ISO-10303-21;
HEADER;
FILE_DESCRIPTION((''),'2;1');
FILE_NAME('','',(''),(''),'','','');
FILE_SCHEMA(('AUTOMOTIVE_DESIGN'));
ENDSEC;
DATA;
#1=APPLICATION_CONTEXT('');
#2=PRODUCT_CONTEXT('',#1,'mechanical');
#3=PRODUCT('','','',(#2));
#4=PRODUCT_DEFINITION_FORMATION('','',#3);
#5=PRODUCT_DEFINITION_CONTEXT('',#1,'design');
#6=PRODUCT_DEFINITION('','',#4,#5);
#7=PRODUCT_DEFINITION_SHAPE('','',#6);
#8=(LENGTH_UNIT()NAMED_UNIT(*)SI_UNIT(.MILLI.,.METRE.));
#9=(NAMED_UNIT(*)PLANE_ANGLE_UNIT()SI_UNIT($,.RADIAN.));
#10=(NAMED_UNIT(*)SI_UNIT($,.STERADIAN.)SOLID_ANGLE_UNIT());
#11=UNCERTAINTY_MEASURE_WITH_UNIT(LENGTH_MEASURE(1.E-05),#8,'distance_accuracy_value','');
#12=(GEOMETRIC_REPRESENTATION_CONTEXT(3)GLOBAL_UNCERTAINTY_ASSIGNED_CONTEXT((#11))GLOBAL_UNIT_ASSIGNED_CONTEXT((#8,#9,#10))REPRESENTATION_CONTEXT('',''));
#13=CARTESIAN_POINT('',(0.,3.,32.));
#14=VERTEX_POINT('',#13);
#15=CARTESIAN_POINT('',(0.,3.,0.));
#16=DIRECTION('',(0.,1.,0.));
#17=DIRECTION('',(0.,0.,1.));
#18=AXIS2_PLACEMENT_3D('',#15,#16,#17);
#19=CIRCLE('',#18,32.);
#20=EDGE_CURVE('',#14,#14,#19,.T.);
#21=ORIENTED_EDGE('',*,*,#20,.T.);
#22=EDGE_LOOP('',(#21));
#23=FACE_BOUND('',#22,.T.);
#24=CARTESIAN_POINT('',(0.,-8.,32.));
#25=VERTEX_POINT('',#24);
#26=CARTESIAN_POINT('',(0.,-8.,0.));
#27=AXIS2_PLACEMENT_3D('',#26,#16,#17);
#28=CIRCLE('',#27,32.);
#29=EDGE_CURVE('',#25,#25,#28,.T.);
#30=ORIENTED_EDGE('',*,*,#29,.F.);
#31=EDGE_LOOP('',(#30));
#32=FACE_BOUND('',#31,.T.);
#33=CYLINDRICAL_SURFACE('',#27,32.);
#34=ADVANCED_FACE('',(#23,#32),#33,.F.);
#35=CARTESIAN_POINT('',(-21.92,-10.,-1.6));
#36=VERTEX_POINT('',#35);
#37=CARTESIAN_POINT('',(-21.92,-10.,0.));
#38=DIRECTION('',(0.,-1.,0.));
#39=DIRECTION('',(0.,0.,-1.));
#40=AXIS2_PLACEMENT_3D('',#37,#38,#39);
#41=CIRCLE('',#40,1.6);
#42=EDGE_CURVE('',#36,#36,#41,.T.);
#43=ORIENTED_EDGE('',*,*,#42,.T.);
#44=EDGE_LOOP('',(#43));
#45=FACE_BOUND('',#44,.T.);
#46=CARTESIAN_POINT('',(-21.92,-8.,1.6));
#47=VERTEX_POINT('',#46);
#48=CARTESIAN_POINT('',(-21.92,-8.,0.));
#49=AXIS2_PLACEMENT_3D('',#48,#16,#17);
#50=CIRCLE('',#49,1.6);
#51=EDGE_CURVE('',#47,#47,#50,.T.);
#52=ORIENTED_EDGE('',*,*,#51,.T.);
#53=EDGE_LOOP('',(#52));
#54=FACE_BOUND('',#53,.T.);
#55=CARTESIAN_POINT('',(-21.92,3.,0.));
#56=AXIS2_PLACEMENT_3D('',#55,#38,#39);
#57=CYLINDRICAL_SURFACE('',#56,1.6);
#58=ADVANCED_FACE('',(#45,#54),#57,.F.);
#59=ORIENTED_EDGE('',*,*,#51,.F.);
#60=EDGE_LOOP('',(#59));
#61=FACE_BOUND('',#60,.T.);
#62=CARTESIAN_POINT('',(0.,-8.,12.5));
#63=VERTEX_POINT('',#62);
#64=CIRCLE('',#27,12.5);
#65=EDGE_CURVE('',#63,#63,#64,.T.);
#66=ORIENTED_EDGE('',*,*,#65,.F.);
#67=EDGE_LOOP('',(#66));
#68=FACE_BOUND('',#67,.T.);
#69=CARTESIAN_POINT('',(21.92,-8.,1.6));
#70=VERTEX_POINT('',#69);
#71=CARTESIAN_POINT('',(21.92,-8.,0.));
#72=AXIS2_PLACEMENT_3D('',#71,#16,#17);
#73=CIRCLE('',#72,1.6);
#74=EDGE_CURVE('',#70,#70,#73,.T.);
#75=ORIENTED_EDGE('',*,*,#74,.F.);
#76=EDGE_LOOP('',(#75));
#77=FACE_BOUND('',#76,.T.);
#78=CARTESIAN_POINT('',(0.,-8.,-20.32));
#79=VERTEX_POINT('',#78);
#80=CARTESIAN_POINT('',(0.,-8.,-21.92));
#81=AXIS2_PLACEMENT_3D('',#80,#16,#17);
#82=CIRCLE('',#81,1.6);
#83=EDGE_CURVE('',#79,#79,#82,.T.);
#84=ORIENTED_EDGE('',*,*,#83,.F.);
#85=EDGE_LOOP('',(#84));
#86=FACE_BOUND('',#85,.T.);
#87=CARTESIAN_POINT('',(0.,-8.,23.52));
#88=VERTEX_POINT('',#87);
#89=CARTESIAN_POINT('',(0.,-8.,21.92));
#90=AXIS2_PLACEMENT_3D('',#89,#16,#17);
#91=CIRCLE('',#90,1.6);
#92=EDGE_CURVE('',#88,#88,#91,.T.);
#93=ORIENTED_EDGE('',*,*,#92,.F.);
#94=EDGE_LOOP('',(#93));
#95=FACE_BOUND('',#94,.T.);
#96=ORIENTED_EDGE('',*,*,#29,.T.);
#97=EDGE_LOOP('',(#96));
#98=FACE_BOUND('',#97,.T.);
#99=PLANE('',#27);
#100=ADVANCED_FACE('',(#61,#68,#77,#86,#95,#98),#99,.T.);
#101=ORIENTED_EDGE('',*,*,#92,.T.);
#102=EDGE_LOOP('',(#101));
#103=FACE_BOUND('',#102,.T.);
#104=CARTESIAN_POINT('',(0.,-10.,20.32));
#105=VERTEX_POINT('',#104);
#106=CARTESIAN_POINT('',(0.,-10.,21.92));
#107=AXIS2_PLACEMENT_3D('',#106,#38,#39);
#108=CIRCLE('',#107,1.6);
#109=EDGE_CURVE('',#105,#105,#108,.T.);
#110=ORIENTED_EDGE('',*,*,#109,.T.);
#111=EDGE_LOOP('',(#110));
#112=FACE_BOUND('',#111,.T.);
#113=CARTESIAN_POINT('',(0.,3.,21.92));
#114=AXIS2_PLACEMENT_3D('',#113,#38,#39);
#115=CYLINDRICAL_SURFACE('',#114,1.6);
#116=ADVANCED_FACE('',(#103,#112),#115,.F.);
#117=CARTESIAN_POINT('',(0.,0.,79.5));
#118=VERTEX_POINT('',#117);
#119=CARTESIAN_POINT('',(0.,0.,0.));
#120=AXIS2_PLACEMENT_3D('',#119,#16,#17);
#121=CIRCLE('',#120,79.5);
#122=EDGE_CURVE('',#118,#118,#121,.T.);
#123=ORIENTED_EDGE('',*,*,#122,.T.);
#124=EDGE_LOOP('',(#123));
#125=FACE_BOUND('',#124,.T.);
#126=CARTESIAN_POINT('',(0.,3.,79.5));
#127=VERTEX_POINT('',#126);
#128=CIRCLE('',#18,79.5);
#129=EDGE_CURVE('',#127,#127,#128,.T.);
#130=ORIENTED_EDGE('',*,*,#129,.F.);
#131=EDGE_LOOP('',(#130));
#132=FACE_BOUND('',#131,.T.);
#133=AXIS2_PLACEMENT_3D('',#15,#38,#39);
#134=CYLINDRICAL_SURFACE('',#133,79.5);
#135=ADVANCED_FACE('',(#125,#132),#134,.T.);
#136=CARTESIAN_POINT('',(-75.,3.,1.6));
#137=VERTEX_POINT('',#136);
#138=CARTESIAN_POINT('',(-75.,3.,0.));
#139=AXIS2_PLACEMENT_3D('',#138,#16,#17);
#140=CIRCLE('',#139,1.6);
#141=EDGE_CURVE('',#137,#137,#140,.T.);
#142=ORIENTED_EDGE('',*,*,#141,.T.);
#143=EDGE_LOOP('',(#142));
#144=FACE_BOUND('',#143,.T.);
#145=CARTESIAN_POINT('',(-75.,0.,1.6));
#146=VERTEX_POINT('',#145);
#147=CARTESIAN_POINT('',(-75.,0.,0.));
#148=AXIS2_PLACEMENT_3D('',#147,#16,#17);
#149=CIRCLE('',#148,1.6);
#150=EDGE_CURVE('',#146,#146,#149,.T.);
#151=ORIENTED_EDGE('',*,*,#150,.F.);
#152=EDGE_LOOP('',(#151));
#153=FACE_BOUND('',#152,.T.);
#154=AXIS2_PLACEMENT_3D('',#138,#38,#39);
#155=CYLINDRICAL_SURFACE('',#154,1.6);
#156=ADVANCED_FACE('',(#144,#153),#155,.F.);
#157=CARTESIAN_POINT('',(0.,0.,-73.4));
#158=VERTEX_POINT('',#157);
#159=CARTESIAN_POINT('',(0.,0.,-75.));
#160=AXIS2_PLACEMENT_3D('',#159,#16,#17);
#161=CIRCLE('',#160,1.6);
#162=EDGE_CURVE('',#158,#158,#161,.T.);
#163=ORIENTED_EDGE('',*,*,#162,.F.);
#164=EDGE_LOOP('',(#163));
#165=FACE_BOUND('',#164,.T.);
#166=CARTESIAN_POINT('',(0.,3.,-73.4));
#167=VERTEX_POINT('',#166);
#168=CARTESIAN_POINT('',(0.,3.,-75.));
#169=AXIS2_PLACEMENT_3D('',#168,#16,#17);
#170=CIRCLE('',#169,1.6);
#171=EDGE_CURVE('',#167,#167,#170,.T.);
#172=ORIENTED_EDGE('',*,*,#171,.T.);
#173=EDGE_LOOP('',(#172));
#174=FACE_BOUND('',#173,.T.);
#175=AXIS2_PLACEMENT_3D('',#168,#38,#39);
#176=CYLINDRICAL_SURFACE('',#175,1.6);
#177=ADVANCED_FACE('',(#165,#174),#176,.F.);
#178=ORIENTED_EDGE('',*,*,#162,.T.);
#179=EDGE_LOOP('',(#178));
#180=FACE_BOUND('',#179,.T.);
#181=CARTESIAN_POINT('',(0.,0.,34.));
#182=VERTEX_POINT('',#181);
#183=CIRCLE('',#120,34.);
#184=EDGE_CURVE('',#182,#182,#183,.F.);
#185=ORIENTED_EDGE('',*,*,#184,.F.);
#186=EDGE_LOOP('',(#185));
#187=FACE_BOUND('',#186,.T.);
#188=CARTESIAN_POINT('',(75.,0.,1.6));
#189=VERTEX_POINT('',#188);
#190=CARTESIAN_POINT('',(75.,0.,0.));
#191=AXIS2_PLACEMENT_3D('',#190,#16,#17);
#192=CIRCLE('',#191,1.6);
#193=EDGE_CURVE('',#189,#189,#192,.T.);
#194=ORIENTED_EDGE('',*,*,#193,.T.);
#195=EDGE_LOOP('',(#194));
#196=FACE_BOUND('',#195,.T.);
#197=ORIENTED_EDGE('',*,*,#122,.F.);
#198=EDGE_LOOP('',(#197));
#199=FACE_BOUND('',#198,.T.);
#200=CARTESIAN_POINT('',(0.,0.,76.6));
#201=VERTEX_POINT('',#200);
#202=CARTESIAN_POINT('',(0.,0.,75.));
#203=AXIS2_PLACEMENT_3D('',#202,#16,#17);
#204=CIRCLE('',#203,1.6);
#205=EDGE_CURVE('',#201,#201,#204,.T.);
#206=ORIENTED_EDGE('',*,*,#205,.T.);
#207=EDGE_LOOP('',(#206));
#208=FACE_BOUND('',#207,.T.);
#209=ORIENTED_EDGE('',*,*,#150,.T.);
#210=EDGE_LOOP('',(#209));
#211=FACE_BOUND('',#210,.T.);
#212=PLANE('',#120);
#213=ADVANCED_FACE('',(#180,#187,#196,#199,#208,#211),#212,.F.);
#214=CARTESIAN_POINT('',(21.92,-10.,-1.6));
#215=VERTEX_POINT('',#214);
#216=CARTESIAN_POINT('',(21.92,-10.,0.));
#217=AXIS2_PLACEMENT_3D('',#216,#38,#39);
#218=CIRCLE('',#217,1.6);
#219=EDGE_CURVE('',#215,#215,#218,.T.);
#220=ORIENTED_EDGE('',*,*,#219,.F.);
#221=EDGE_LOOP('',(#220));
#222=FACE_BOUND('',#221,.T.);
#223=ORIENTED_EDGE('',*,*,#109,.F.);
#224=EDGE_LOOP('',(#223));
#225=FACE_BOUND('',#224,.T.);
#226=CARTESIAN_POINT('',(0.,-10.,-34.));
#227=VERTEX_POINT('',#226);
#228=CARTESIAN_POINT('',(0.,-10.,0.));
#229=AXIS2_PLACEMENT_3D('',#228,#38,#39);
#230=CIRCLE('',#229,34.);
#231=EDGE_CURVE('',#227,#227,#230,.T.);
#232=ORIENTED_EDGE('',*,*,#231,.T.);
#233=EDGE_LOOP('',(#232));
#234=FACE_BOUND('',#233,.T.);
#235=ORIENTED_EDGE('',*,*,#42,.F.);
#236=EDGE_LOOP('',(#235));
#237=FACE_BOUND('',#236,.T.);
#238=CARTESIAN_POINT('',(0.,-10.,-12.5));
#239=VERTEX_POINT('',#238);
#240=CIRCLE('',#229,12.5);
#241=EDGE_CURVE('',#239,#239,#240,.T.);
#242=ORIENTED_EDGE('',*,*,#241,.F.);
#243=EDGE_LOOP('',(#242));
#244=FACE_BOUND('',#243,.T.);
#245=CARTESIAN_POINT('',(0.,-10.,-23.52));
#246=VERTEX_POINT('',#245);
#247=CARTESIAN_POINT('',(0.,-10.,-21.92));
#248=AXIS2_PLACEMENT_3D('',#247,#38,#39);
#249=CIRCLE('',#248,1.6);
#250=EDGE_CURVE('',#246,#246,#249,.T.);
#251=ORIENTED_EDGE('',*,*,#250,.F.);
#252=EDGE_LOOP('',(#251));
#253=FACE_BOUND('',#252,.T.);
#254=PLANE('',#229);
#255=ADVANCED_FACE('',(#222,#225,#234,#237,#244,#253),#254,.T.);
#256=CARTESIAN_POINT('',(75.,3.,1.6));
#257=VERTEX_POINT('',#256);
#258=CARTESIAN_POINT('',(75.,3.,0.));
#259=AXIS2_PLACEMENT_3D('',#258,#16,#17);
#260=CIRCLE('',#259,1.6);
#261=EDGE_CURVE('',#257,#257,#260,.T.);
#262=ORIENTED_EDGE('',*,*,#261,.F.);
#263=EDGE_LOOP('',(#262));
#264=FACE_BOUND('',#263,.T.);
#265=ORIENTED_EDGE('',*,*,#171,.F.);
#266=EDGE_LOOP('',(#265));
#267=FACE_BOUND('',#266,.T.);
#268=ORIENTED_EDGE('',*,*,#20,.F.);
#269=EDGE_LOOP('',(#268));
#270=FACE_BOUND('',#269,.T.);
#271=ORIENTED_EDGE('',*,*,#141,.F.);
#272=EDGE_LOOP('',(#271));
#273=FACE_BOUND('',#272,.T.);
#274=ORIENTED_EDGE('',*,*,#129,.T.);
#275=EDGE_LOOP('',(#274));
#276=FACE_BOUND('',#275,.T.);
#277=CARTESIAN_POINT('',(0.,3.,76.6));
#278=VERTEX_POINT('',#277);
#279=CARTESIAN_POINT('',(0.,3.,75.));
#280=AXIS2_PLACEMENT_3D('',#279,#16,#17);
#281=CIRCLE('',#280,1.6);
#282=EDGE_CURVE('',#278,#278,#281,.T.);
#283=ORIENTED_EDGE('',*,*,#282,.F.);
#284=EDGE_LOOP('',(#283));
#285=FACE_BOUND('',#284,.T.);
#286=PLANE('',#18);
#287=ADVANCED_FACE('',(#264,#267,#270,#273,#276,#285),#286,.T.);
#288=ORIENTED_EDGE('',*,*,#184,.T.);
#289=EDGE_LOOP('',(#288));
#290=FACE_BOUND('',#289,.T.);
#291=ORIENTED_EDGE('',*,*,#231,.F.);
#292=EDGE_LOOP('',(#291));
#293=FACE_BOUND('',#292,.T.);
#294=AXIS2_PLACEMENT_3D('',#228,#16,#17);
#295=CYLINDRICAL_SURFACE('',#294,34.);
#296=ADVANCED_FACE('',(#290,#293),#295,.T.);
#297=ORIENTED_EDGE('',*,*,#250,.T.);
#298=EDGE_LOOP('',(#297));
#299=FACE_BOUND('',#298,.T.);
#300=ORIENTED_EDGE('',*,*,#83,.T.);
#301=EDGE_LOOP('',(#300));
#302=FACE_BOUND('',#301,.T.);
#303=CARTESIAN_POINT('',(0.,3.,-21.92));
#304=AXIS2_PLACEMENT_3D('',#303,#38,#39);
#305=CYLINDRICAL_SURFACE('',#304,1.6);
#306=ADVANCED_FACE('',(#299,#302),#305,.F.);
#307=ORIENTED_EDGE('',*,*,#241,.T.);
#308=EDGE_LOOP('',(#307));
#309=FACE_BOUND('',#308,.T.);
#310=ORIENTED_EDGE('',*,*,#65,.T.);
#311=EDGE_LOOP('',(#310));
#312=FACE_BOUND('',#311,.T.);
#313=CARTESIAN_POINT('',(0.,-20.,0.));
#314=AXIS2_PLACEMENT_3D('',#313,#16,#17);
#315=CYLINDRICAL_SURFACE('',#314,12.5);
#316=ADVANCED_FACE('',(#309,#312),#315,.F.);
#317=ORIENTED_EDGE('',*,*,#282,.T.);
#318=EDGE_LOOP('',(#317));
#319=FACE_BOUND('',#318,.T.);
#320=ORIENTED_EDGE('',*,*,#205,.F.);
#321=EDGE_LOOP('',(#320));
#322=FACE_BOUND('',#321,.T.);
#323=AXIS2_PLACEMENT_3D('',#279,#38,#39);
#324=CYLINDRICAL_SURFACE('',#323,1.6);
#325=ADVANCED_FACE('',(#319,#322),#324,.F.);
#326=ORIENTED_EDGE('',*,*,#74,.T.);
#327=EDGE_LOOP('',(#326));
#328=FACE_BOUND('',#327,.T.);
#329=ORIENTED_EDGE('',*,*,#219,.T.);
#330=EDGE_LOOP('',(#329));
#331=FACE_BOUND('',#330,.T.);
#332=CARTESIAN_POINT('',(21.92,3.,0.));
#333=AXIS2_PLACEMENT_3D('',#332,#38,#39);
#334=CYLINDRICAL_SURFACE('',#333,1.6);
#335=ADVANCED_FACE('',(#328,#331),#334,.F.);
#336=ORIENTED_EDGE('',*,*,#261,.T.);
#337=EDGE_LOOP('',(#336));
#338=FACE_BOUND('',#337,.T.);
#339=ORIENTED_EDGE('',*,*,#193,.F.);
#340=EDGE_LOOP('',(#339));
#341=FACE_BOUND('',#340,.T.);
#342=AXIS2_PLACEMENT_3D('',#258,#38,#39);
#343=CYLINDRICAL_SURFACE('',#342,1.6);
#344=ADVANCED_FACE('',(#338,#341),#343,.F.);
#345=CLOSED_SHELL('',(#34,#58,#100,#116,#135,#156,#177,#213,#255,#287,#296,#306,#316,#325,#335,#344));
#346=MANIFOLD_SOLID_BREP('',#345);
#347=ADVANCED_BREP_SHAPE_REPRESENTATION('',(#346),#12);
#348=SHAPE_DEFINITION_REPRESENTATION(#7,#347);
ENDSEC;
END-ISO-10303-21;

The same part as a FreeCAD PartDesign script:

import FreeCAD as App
import Part
import Sketcher
Q = App.Units.Quantity

doc = App.newDocument("Part")
body = doc.addObject("PartDesign::Body", "Body")

# Sketch on XZ plane
sketch1 = body.newObject("Sketcher::SketchObject", "Sketch")
sketch1.AttachmentSupport = (doc.getObject("XZ_Plane"), [""])
sketch1.MapMode = "FlatFace"
sketch1.addGeometry([
    Part.Circle(App.Vector(0, 0, 0), App.Vector(0, 0, 1), 79.5),  # 0
    Part.Circle(App.Vector(0, -75, 0), App.Vector(0, 0, 1), 1.6),  # 1
    Part.Circle(App.Vector(-75, 0, 0), App.Vector(0, 0, 1), 1.6),  # 2
    Part.Circle(App.Vector(-21.9, 0, 0), App.Vector(0, 0, 1), 1.6),  # 3
    Part.Circle(App.Vector(0, -21.9, 0), App.Vector(0, 0, 1), 1.6),  # 4
    Part.Circle(App.Vector(21.9, 0, 0), App.Vector(0, 0, 1), 1.6),  # 5
    Part.Circle(App.Vector(75, 0, 0), App.Vector(0, 0, 1), 1.6),  # 6
    Part.Circle(App.Vector(0, 21.9, 0), App.Vector(0, 0, 1), 1.6),  # 7
    Part.Circle(App.Vector(0, 75, 0), App.Vector(0, 0, 1), 1.6),  # 8
], False)
sketch1.addConstraint([
    Sketcher.Constraint("Coincident", 0, 3, -1, 1),
    Sketcher.Constraint("Equal", 1, 2),
    Sketcher.Constraint("Equal", 2, 3),
    Sketcher.Constraint("Equal", 3, 4),
    Sketcher.Constraint("Equal", 4, 5),
    Sketcher.Constraint("Equal", 5, 6),
    Sketcher.Constraint("Equal", 6, 7),
    Sketcher.Constraint("Equal", 7, 8),
    Sketcher.Constraint("Symmetric", 3, 3, 5, 3, -1, 1),
    Sketcher.Constraint("Symmetric", 2, 3, 6, 3, -1, 1),
    Sketcher.Constraint("Symmetric", 4, 3, 7, 3, -1, 1),
    Sketcher.Constraint("Symmetric", 1, 3, 8, 3, -1, 1),
    Sketcher.Constraint("PointOnObject", 1, 3, -2),
    Sketcher.Constraint("PointOnObject", 2, 3, -1),
    Sketcher.Constraint("PointOnObject", 3, 3, -1),
    Sketcher.Constraint("PointOnObject", 4, 3, -2),
    Sketcher.Constraint("Diameter", 0, Q("159 mm")),
    Sketcher.Constraint("Diameter", 1, Q("3.2 mm")),
    Sketcher.Constraint("DistanceY", 1, 3, -1, 1, Q("75 mm")),
    Sketcher.Constraint("DistanceX", 2, 3, -1, 1, Q("75 mm")),
    Sketcher.Constraint("DistanceX", 3, 3, -1, 1, Q("21.92 mm")),
    Sketcher.Constraint("DistanceY", 4, 3, -1, 1, Q("21.92 mm")),
])
pad1 = body.newObject("PartDesign::Pad", "Pad")
pad1.Profile = sketch1
pad1.Length = 3
pad1.Reversed = True

# Sketch on XZ plane
sketch2 = body.newObject("Sketcher::SketchObject", "Sketch001")
sketch2.AttachmentSupport = (doc.getObject("XZ_Plane"), [""])
sketch2.MapMode = "FlatFace"
sketch2.addGeometry(Part.Circle(App.Vector(0, 0, 0), App.Vector(0, 0, 1), 34), False)
sketch2.addConstraint([
    Sketcher.Constraint("Coincident", 0, 3, -1, 1),
    Sketcher.Constraint("Diameter", 0, Q("68 mm")),
])
pad2 = body.newObject("PartDesign::Pad", "Pad001")
pad2.Profile = sketch2
pad2.Length = 10

# Sketch on XZ plane
sketch3 = body.newObject("Sketcher::SketchObject", "Sketch002")
sketch3.AttachmentSupport = (doc.getObject("XZ_Plane"), [""])
sketch3.MapMode = "FlatFace"
sketch3.AttachmentOffset = App.Placement(App.Vector(0, 0, 19), App.Rotation())
sketch3.addGeometry([
    Part.Circle(App.Vector(0, -21.9, 0), App.Vector(0, 0, 1), 1.6),
    Part.Circle(App.Vector(21.9, 0, 0), App.Vector(0, 0, 1), 1.6),
    Part.Circle(App.Vector(0, 21.9, 0), App.Vector(0, 0, 1), 1.6),
    Part.Circle(App.Vector(-21.9, 0, 0), App.Vector(0, 0, 1), 1.6),
], False)
sketch3.addConstraint([
    Sketcher.Constraint("Equal", 0, 1),
    Sketcher.Constraint("Equal", 1, 2),
    Sketcher.Constraint("Equal", 2, 3),
    Sketcher.Constraint("Symmetric", 0, 3, 2, 3, -1, 1),
    Sketcher.Constraint("Symmetric", 1, 3, 3, 3, -1, 1),
    Sketcher.Constraint("PointOnObject", 0, 3, -2),
    Sketcher.Constraint("PointOnObject", 1, 3, -1),
    Sketcher.Constraint("Diameter", 0, Q("3.2 mm")),
    Sketcher.Constraint("DistanceY", 0, 3, -1, 1, Q("21.92 mm")),
    Sketcher.Constraint("DistanceX", -1, 1, 1, 3, Q("21.92 mm")),
])
pocket1 = body.newObject("PartDesign::Pocket", "Pocket")
pocket1.Profile = sketch3
pocket1.Length = 22

# Sketch on XZ plane
sketch4 = body.newObject("Sketcher::SketchObject", "Sketch003")
sketch4.AttachmentSupport = (doc.getObject("XZ_Plane"), [""])
sketch4.MapMode = "FlatFace"
sketch4.AttachmentOffset = App.Placement(App.Vector(0, 0, -3), App.Rotation())
sketch4.addGeometry(Part.Circle(App.Vector(0, 0, 0), App.Vector(0, 0, 1), 32), False)
sketch4.addConstraint([
    Sketcher.Constraint("Coincident", 0, 3, -1, 1),
    Sketcher.Constraint("Diameter", 0, Q("64 mm")),
])
pocket2 = body.newObject("PartDesign::Pocket", "Pocket001")
pocket2.Profile = sketch4
pocket2.Length = 11
pocket2.Reversed = True

# Sketch on XZ plane
sketch5 = body.newObject("Sketcher::SketchObject", "Sketch004")
sketch5.AttachmentSupport = (doc.getObject("XZ_Plane"), [""])
sketch5.MapMode = "FlatFace"
sketch5.AttachmentOffset = App.Placement(App.Vector(0, 0, 8), App.Rotation())
sketch5.addGeometry(Part.Circle(App.Vector(0, 0, 0), App.Vector(0, 0, 1), 12), False)
sketch5.addConstraint([
    Sketcher.Constraint("Coincident", 0, 3, -1, 1),
    Sketcher.Constraint("Diameter", 0, Q("25 mm")),
])
pocket3 = body.newObject("PartDesign::Pocket", "Pocket002")
pocket3.Profile = sketch5
pocket3.Length = 12
pocket3.Reversed = True

doc.recompute()
